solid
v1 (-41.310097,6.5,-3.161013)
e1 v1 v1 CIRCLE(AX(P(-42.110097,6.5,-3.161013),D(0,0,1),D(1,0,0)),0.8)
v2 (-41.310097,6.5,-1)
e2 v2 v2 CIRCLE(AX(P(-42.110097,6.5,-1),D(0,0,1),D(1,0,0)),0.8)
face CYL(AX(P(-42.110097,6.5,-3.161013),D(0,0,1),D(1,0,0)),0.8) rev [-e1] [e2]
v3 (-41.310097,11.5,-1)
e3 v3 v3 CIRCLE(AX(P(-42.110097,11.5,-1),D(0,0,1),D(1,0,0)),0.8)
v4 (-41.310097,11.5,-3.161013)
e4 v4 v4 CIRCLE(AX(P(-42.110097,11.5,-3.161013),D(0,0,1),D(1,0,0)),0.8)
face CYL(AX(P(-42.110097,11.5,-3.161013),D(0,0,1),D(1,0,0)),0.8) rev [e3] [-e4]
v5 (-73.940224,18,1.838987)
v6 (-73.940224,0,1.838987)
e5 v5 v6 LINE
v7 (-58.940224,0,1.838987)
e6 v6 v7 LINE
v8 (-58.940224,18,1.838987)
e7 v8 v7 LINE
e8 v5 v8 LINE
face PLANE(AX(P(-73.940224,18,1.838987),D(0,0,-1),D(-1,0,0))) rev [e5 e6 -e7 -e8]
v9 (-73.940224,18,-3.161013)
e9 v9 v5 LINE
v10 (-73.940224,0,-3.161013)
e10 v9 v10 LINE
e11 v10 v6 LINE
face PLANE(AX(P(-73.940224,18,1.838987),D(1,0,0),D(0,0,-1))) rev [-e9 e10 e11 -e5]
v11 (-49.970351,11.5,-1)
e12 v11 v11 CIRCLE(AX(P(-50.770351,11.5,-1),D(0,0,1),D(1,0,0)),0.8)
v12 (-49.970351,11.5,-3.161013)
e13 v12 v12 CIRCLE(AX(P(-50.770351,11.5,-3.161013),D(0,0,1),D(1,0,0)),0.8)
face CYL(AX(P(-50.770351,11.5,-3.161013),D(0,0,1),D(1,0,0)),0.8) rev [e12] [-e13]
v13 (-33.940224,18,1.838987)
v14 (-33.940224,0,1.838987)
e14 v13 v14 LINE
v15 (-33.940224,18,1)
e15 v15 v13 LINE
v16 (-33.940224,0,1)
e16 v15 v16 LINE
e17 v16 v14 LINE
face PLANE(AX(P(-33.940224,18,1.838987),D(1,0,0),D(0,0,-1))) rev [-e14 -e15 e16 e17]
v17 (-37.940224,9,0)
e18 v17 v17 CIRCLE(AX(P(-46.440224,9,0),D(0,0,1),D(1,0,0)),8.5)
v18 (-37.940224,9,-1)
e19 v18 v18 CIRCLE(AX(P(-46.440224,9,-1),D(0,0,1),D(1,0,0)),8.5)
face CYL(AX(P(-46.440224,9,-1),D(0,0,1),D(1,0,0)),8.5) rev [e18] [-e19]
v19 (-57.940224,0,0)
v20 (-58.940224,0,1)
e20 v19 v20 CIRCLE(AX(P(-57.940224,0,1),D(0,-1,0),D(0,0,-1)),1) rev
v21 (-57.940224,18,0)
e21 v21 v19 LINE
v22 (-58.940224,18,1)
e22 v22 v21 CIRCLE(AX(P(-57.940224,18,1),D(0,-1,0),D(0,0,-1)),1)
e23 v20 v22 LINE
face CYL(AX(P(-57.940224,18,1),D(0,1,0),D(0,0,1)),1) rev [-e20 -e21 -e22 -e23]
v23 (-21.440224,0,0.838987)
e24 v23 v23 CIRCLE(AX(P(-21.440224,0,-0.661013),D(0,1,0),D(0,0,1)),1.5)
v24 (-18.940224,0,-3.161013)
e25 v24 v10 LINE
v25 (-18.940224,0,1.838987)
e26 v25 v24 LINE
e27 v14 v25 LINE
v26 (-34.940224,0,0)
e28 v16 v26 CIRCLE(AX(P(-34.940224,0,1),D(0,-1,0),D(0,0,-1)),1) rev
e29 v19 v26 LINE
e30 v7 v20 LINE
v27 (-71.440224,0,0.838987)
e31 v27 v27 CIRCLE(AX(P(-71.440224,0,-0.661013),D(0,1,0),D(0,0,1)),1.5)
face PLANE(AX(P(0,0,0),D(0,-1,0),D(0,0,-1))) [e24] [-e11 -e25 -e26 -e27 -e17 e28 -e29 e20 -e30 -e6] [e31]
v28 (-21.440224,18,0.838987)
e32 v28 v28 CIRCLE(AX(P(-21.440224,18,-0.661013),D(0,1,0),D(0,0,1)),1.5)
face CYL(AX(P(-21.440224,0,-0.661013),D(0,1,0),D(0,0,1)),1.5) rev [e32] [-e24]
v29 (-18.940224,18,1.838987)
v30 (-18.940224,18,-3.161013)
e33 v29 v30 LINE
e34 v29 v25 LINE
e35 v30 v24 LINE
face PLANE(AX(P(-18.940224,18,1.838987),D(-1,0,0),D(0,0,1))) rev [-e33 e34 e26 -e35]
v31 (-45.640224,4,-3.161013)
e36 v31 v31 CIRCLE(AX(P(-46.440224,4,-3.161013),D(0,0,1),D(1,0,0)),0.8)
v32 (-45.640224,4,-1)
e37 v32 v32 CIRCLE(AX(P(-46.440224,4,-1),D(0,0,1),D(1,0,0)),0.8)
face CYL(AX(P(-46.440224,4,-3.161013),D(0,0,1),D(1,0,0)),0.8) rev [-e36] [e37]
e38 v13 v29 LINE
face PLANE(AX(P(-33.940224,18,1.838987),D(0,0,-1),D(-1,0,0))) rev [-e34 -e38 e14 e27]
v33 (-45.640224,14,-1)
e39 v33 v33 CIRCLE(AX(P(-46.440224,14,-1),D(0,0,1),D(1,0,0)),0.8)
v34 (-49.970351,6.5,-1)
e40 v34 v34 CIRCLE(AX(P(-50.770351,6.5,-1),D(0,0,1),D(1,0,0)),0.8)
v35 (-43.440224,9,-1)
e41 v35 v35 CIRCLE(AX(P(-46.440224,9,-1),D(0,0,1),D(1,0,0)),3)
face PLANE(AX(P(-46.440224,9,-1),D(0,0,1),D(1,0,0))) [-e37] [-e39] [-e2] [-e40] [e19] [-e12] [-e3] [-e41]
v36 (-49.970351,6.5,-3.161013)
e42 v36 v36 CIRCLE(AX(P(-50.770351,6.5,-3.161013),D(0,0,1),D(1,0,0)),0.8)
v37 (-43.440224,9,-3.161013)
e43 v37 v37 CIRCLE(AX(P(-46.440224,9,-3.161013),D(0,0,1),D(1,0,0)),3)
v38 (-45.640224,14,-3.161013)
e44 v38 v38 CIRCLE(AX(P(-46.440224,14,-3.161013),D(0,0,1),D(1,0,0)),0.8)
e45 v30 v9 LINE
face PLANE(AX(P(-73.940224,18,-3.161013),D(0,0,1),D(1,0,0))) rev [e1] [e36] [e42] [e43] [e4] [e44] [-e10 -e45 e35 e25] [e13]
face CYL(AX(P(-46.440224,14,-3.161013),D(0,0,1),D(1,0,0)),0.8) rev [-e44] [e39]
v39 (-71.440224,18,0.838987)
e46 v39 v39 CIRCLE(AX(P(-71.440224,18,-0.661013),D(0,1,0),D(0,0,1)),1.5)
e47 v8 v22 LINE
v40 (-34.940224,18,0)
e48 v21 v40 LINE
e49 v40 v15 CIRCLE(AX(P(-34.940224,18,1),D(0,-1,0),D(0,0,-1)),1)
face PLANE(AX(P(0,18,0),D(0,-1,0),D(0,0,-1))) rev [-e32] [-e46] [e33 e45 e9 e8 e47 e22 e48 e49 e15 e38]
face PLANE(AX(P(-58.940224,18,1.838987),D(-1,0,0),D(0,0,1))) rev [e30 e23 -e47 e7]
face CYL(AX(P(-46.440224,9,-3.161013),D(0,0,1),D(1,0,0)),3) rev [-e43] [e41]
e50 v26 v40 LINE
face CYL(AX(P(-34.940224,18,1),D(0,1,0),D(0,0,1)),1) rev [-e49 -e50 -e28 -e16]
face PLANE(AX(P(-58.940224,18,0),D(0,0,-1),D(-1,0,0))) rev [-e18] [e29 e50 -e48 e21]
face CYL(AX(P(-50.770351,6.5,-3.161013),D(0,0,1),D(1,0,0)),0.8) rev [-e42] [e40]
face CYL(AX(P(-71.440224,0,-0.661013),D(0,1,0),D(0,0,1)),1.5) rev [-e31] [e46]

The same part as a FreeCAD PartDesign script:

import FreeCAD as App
import Part
import Sketcher


def edges_at(feature, points):
    """Names of the edges that pass closest to the given points."""
    edges = feature.Shape.Edges
    near = lambda p: min(range(len(edges)), key=lambda i: edges[i].distToShape(Part.Vertex(*p))[0])
    return sorted({f"Edge{near(p) + 1}" for p in points})

doc = App.newDocument("Part")
body = doc.addObject("PartDesign::Body", "Body")

sketch1 = doc.addObject("Sketcher::SketchObject", "Sketch")
body.addObject(sketch1)
sketch1.AttachmentSupport = (doc.XZ_Plane, [""])
sketch1.MapMode = "FlatFace"
sketch1.addGeometry([
    Part.LineSegment(App.Vector(-33.9, 1.8, 0), App.Vector(-18.9, 1.8, 0)),
    Part.LineSegment(App.Vector(-18.9, 1.8, 0), App.Vector(-18.9, -3.2, 0)),
    Part.LineSegment(App.Vector(-18.9, -3.2, 0), App.Vector(-73.9, -3.2, 0)),
    Part.LineSegment(App.Vector(-73.9, -3.2, 0), App.Vector(-73.9, 1.8, 0)),
    Part.LineSegment(App.Vector(-73.9, 1.8, 0), App.Vector(-58.9, 1.8, 0)),
    Part.LineSegment(App.Vector(-58.9, 1.8, 0), App.Vector(-58.9, 0, 0)),
    Part.LineSegment(App.Vector(-58.9, 0, 0), App.Vector(-33.9, 0, 0)),
    Part.LineSegment(App.Vector(-33.9, 0, 0), App.Vector(-33.9, 1.8, 0)),
], False)
sketch1.addConstraint([
    Sketcher.Constraint("Coincident", 0, 2, 1, 1),
    Sketcher.Constraint("Coincident", 1, 2, 2, 1),
    Sketcher.Constraint("Coincident", 2, 2, 3, 1),
    Sketcher.Constraint("Coincident", 3, 2, 4, 1),
    Sketcher.Constraint("Coincident", 4, 2, 5, 1),
    Sketcher.Constraint("Coincident", 5, 2, 6, 1),
    Sketcher.Constraint("Coincident", 6, 2, 7, 1),
    Sketcher.Constraint("Coincident", 7, 2, 0, 1),
    Sketcher.Constraint("Horizontal", 0),
    Sketcher.Constraint("Vertical", 1),
    Sketcher.Constraint("Horizontal", 2),
    Sketcher.Constraint("Vertical", 3),
    Sketcher.Constraint("Horizontal", 4),
    Sketcher.Constraint("Vertical", 5),
    Sketcher.Constraint("Horizontal", 6),
    Sketcher.Constraint("Vertical", 7),
    Sketcher.Constraint("PointOnObject", 5, 2, -1),
    Sketcher.Constraint("Horizontal", 0, 2, 3, 2),
    Sketcher.Constraint("Equal", 0, 4),
    Sketcher.Constraint("DistanceX", 0, 1, 0, 2, 15.0),
    Sketcher.Constraint("DistanceX", 2, 2, 2, 1, 55.0),
    Sketcher.Constraint("DistanceY", 1, 2, 1, 1, 5.0),
    Sketcher.Constraint("DistanceY", 5, 2, 5, 1, 1.838987),
    Sketcher.Constraint("DistanceX", 0, 2, -1, 1, 18.940224),
])
pad1 = doc.addObject("PartDesign::Pad", "Pad")
body.addObject(pad1)
pad1.Profile = sketch1
pad1.Length = 18
pad1.Reversed = True

sketch2 = doc.addObject("Sketcher::SketchObject", "Sketch001")
body.addObject(sketch2)
sketch2.AttachmentSupport = (doc.XY_Plane, [""])
sketch2.MapMode = "FlatFace"
sketch2.addGeometry(Part.Circle(App.Vector(-46, 9, 0), App.Vector(0, 0, 1), 8), False)
sketch2.addConstraint([
    Sketcher.Constraint("Diameter", 0, 17.0),
    Sketcher.Constraint("DistanceY", -1, 1, 0, 3, 9.0),
    Sketcher.Constraint("DistanceX", 0, 3, -1, 1, 46.440224),
])
pocket1 = doc.addObject("PartDesign::Pocket", "Pocket")
body.addObject(pocket1)
pocket1.Profile = sketch2
pocket1.Length = 1

sketch3 = doc.addObject("Sketcher::SketchObject", "Sketch002")
body.addObject(sketch3)
sketch3.AttachmentSupport = (doc.XY_Plane, [""])
sketch3.MapMode = "FlatFace"
sketch3.AttachmentOffset = App.Placement(App.Vector(0, 0, -1), App.Rotation())
sketch3.addGeometry(Part.Circle(App.Vector(-46.4, 9, 0), App.Vector(0, 0, 1), 3), False)
sketch3.addConstraint([
    Sketcher.Constraint("Diameter", 0, 6.0),
    Sketcher.Constraint("DistanceY", -1, 1, 0, 3, 9.0),
    Sketcher.Constraint("DistanceX", 0, 3, -1, 1, 46.440224),
])
pocket2 = doc.addObject("PartDesign::Pocket", "Pocket001")
body.addObject(pocket2)
pocket2.Profile = sketch3
pocket2.Type = "ThroughAll"

sketch4 = doc.addObject("Sketcher::SketchObject", "Sketch003")
body.addObject(sketch4)
sketch4.AttachmentSupport = (doc.XY_Plane, [""])
sketch4.MapMode = "FlatFace"
sketch4.AttachmentOffset = App.Placement(App.Vector(0, 0, -1), App.Rotation())
sketch4.addGeometry([
    Part.Circle(App.Vector(-42.1, 11.5, 0), App.Vector(0, 0, 1), 0.8),
    Part.Circle(App.Vector(-42.1, 6.5, 0), App.Vector(0, 0, 1), 0.8),
    Part.Circle(App.Vector(-46.4, 14, 0), App.Vector(0, 0, 1), 0.8),
    Part.Circle(App.Vector(-46.4, 4, 0), App.Vector(0, 0, 1), 0.8),
    Part.Circle(App.Vector(-50.8, 11.5, 0), App.Vector(0, 0, 1), 0.8),
    Part.Circle(App.Vector(-50.8, 6.5, 0), App.Vector(0, 0, 1), 0.8),
], False)
sketch4.addConstraint([
    Sketcher.Constraint("Equal", 0, 1),
    Sketcher.Constraint("Equal", 1, 2),
    Sketcher.Constraint("Equal", 2, 3),
    Sketcher.Constraint("Equal", 3, 4),
    Sketcher.Constraint("Equal", 4, 5),
    Sketcher.Constraint("Horizontal", 0, 3, 4, 3),
    Sketcher.Constraint("Horizontal", 1, 3, 5, 3),
    Sketcher.Constraint("Vertical", 0, 3, 1, 3),
    Sketcher.Constraint("Vertical", 2, 3, 3, 3),
    Sketcher.Constraint("Vertical", 4, 3, 5, 3),
    Sketcher.Constraint("Diameter", 0, 1.6),
    Sketcher.Constraint("DistanceY", -1, 1, 2, 3, 14.0),
    Sketcher.Constraint("DistanceY", -1, 1, 3, 3, 4.0),
    Sketcher.Constraint("DistanceY", 1, 3, 0, 3, 5.0),
    Sketcher.Constraint("DistanceY", -1, 1, 0, 3, 11.5),
    Sketcher.Constraint("DistanceX", 4, 3, -1, 1, 50.770351),
    Sketcher.Constraint("DistanceX", 0, 3, -1, 1, 42.110097),
    Sketcher.Constraint("DistanceX", 2, 3, -1, 1, 46.440224),
])
pocket3 = doc.addObject("PartDesign::Pocket", "Pocket002")
body.addObject(pocket3)
pocket3.Profile = sketch4
pocket3.Type = "ThroughAll"
doc.recompute()

fillet = doc.addObject("PartDesign::Fillet", "Fillet")
body.addObject(fillet)
fillet.Base = (pocket3, edges_at(pocket3, [(-33.94, 9, 0), (-58.94, 9, 0)]))
fillet.Radius = 1

sketch5 = doc.addObject("Sketcher::SketchObject", "Sketch004")
body.addObject(sketch5)
sketch5.AttachmentSupport = (doc.XZ_Plane, [""])
sketch5.MapMode = "FlatFace"
sketch5.AttachmentOffset = App.Placement(App.Vector(0, 0, -18), App.Rotation())
sketch5.addGeometry([
    Part.Circle(App.Vector(-71.4, -0.7, 0), App.Vector(0, 0, 1), 1.5),
    Part.Circle(App.Vector(-21.4, -0.7, 0), App.Vector(0, 0, 1), 1.5),
], False)
sketch5.addConstraint([
    Sketcher.Constraint("Equal", 0, 1),
    Sketcher.Constraint("Horizontal", 0, 3, 1, 3),
    Sketcher.Constraint("Diameter", 0, 3.0),
    Sketcher.Constraint("DistanceX", 0, 3, 1, 3, 50.0),
    Sketcher.Constraint("DistanceX", 0, 3, -1, 1, 71.440224),
    Sketcher.Constraint("DistanceY", 0, 3, -1, 1, 0.661013),
])
pocket4 = doc.addObject("PartDesign::Pocket", "Pocket003")
body.addObject(pocket4)
pocket4.Profile = sketch5
pocket4.Type = "ThroughAll"
pocket4.Reversed = True

doc.recompute()
